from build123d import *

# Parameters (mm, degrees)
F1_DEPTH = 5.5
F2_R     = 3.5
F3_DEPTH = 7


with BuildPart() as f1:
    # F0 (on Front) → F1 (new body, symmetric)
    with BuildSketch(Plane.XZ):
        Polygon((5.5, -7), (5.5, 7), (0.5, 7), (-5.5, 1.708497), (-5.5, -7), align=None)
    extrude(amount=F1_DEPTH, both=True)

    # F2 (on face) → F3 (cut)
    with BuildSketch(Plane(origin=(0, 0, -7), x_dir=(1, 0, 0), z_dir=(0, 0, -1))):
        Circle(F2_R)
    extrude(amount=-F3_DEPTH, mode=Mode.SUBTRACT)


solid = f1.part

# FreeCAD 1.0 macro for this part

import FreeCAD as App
import Part
import Sketcher

V = App.Vector

doc = App.newDocument("Part")
body = doc.addObject("PartDesign::Body", "Body")

sketch1 = body.newObject("Sketcher::SketchObject", "Sketch")
sketch1.AttachmentSupport = (doc.getObject("XZ_Plane"), [""])
sketch1.MapMode = "FlatFace"
sketch1.addGeometry([
    Part.LineSegment(V(6, -7, 0), V(6, 7, 0)),
    Part.LineSegment(V(6, 7, 0), V(0, 7, 0)),
    Part.LineSegment(V(0, 7, 0), V(-6, 2, 0)),
    Part.LineSegment(V(-6, 2, 0), V(-6, -7, 0)),
    Part.LineSegment(V(-6, -7, 0), V(6, -7, 0)),
], False)
sketch1.addConstraint([
    Sketcher.Constraint("Coincident", 0, 2, 1, 1),
    Sketcher.Constraint("Coincident", 1, 2, 2, 1),
    Sketcher.Constraint("Coincident", 2, 2, 3, 1),
    Sketcher.Constraint("Coincident", 3, 2, 4, 1),
    Sketcher.Constraint("Coincident", 4, 2, 0, 1),
    Sketcher.Constraint("Vertical", 0),
    Sketcher.Constraint("Horizontal", 1),
    Sketcher.Constraint("Vertical", 3),
    Sketcher.Constraint("Horizontal", 4),
    Sketcher.Constraint("Symmetric", 0, 2, 3, 2, -1, 1),
    Sketcher.Constraint("DistanceX", 1, 2, 1, 1, 5.0),
    Sketcher.Constraint("DistanceX", 4, 1, 4, 2, 11.0),
    Sketcher.Constraint("DistanceY", 0, 1, 0, 2, 14.0),
    Sketcher.Constraint("Distance", 2, 8.0),
])
pad1 = body.newObject("PartDesign::Pad", "Pad")
pad1.Profile = sketch1
pad1.Length = 11
pad1.Midplane = True

sketch2 = body.newObject("Sketcher::SketchObject", "Sketch001")
sketch2.AttachmentSupport = (doc.getObject("XY_Plane"), [""])
sketch2.MapMode = "FlatFace"
sketch2.AttachmentOffset = App.Placement(V(0, 0, -7), App.Rotation())
sketch2.addGeometry(Part.Circle(V(0, 0, 0), V(0, 0, 1), 3.5), False)
sketch2.addConstraint([
    Sketcher.Constraint("Coincident", 0, 3, -1, 1),
    Sketcher.Constraint("Diameter", 0, 7.0),
])
pocket1 = body.newObject("PartDesign::Pocket", "Pocket")
pocket1.Profile = sketch2
pocket1.Length = 7
pocket1.Reversed = True

doc.recompute()
